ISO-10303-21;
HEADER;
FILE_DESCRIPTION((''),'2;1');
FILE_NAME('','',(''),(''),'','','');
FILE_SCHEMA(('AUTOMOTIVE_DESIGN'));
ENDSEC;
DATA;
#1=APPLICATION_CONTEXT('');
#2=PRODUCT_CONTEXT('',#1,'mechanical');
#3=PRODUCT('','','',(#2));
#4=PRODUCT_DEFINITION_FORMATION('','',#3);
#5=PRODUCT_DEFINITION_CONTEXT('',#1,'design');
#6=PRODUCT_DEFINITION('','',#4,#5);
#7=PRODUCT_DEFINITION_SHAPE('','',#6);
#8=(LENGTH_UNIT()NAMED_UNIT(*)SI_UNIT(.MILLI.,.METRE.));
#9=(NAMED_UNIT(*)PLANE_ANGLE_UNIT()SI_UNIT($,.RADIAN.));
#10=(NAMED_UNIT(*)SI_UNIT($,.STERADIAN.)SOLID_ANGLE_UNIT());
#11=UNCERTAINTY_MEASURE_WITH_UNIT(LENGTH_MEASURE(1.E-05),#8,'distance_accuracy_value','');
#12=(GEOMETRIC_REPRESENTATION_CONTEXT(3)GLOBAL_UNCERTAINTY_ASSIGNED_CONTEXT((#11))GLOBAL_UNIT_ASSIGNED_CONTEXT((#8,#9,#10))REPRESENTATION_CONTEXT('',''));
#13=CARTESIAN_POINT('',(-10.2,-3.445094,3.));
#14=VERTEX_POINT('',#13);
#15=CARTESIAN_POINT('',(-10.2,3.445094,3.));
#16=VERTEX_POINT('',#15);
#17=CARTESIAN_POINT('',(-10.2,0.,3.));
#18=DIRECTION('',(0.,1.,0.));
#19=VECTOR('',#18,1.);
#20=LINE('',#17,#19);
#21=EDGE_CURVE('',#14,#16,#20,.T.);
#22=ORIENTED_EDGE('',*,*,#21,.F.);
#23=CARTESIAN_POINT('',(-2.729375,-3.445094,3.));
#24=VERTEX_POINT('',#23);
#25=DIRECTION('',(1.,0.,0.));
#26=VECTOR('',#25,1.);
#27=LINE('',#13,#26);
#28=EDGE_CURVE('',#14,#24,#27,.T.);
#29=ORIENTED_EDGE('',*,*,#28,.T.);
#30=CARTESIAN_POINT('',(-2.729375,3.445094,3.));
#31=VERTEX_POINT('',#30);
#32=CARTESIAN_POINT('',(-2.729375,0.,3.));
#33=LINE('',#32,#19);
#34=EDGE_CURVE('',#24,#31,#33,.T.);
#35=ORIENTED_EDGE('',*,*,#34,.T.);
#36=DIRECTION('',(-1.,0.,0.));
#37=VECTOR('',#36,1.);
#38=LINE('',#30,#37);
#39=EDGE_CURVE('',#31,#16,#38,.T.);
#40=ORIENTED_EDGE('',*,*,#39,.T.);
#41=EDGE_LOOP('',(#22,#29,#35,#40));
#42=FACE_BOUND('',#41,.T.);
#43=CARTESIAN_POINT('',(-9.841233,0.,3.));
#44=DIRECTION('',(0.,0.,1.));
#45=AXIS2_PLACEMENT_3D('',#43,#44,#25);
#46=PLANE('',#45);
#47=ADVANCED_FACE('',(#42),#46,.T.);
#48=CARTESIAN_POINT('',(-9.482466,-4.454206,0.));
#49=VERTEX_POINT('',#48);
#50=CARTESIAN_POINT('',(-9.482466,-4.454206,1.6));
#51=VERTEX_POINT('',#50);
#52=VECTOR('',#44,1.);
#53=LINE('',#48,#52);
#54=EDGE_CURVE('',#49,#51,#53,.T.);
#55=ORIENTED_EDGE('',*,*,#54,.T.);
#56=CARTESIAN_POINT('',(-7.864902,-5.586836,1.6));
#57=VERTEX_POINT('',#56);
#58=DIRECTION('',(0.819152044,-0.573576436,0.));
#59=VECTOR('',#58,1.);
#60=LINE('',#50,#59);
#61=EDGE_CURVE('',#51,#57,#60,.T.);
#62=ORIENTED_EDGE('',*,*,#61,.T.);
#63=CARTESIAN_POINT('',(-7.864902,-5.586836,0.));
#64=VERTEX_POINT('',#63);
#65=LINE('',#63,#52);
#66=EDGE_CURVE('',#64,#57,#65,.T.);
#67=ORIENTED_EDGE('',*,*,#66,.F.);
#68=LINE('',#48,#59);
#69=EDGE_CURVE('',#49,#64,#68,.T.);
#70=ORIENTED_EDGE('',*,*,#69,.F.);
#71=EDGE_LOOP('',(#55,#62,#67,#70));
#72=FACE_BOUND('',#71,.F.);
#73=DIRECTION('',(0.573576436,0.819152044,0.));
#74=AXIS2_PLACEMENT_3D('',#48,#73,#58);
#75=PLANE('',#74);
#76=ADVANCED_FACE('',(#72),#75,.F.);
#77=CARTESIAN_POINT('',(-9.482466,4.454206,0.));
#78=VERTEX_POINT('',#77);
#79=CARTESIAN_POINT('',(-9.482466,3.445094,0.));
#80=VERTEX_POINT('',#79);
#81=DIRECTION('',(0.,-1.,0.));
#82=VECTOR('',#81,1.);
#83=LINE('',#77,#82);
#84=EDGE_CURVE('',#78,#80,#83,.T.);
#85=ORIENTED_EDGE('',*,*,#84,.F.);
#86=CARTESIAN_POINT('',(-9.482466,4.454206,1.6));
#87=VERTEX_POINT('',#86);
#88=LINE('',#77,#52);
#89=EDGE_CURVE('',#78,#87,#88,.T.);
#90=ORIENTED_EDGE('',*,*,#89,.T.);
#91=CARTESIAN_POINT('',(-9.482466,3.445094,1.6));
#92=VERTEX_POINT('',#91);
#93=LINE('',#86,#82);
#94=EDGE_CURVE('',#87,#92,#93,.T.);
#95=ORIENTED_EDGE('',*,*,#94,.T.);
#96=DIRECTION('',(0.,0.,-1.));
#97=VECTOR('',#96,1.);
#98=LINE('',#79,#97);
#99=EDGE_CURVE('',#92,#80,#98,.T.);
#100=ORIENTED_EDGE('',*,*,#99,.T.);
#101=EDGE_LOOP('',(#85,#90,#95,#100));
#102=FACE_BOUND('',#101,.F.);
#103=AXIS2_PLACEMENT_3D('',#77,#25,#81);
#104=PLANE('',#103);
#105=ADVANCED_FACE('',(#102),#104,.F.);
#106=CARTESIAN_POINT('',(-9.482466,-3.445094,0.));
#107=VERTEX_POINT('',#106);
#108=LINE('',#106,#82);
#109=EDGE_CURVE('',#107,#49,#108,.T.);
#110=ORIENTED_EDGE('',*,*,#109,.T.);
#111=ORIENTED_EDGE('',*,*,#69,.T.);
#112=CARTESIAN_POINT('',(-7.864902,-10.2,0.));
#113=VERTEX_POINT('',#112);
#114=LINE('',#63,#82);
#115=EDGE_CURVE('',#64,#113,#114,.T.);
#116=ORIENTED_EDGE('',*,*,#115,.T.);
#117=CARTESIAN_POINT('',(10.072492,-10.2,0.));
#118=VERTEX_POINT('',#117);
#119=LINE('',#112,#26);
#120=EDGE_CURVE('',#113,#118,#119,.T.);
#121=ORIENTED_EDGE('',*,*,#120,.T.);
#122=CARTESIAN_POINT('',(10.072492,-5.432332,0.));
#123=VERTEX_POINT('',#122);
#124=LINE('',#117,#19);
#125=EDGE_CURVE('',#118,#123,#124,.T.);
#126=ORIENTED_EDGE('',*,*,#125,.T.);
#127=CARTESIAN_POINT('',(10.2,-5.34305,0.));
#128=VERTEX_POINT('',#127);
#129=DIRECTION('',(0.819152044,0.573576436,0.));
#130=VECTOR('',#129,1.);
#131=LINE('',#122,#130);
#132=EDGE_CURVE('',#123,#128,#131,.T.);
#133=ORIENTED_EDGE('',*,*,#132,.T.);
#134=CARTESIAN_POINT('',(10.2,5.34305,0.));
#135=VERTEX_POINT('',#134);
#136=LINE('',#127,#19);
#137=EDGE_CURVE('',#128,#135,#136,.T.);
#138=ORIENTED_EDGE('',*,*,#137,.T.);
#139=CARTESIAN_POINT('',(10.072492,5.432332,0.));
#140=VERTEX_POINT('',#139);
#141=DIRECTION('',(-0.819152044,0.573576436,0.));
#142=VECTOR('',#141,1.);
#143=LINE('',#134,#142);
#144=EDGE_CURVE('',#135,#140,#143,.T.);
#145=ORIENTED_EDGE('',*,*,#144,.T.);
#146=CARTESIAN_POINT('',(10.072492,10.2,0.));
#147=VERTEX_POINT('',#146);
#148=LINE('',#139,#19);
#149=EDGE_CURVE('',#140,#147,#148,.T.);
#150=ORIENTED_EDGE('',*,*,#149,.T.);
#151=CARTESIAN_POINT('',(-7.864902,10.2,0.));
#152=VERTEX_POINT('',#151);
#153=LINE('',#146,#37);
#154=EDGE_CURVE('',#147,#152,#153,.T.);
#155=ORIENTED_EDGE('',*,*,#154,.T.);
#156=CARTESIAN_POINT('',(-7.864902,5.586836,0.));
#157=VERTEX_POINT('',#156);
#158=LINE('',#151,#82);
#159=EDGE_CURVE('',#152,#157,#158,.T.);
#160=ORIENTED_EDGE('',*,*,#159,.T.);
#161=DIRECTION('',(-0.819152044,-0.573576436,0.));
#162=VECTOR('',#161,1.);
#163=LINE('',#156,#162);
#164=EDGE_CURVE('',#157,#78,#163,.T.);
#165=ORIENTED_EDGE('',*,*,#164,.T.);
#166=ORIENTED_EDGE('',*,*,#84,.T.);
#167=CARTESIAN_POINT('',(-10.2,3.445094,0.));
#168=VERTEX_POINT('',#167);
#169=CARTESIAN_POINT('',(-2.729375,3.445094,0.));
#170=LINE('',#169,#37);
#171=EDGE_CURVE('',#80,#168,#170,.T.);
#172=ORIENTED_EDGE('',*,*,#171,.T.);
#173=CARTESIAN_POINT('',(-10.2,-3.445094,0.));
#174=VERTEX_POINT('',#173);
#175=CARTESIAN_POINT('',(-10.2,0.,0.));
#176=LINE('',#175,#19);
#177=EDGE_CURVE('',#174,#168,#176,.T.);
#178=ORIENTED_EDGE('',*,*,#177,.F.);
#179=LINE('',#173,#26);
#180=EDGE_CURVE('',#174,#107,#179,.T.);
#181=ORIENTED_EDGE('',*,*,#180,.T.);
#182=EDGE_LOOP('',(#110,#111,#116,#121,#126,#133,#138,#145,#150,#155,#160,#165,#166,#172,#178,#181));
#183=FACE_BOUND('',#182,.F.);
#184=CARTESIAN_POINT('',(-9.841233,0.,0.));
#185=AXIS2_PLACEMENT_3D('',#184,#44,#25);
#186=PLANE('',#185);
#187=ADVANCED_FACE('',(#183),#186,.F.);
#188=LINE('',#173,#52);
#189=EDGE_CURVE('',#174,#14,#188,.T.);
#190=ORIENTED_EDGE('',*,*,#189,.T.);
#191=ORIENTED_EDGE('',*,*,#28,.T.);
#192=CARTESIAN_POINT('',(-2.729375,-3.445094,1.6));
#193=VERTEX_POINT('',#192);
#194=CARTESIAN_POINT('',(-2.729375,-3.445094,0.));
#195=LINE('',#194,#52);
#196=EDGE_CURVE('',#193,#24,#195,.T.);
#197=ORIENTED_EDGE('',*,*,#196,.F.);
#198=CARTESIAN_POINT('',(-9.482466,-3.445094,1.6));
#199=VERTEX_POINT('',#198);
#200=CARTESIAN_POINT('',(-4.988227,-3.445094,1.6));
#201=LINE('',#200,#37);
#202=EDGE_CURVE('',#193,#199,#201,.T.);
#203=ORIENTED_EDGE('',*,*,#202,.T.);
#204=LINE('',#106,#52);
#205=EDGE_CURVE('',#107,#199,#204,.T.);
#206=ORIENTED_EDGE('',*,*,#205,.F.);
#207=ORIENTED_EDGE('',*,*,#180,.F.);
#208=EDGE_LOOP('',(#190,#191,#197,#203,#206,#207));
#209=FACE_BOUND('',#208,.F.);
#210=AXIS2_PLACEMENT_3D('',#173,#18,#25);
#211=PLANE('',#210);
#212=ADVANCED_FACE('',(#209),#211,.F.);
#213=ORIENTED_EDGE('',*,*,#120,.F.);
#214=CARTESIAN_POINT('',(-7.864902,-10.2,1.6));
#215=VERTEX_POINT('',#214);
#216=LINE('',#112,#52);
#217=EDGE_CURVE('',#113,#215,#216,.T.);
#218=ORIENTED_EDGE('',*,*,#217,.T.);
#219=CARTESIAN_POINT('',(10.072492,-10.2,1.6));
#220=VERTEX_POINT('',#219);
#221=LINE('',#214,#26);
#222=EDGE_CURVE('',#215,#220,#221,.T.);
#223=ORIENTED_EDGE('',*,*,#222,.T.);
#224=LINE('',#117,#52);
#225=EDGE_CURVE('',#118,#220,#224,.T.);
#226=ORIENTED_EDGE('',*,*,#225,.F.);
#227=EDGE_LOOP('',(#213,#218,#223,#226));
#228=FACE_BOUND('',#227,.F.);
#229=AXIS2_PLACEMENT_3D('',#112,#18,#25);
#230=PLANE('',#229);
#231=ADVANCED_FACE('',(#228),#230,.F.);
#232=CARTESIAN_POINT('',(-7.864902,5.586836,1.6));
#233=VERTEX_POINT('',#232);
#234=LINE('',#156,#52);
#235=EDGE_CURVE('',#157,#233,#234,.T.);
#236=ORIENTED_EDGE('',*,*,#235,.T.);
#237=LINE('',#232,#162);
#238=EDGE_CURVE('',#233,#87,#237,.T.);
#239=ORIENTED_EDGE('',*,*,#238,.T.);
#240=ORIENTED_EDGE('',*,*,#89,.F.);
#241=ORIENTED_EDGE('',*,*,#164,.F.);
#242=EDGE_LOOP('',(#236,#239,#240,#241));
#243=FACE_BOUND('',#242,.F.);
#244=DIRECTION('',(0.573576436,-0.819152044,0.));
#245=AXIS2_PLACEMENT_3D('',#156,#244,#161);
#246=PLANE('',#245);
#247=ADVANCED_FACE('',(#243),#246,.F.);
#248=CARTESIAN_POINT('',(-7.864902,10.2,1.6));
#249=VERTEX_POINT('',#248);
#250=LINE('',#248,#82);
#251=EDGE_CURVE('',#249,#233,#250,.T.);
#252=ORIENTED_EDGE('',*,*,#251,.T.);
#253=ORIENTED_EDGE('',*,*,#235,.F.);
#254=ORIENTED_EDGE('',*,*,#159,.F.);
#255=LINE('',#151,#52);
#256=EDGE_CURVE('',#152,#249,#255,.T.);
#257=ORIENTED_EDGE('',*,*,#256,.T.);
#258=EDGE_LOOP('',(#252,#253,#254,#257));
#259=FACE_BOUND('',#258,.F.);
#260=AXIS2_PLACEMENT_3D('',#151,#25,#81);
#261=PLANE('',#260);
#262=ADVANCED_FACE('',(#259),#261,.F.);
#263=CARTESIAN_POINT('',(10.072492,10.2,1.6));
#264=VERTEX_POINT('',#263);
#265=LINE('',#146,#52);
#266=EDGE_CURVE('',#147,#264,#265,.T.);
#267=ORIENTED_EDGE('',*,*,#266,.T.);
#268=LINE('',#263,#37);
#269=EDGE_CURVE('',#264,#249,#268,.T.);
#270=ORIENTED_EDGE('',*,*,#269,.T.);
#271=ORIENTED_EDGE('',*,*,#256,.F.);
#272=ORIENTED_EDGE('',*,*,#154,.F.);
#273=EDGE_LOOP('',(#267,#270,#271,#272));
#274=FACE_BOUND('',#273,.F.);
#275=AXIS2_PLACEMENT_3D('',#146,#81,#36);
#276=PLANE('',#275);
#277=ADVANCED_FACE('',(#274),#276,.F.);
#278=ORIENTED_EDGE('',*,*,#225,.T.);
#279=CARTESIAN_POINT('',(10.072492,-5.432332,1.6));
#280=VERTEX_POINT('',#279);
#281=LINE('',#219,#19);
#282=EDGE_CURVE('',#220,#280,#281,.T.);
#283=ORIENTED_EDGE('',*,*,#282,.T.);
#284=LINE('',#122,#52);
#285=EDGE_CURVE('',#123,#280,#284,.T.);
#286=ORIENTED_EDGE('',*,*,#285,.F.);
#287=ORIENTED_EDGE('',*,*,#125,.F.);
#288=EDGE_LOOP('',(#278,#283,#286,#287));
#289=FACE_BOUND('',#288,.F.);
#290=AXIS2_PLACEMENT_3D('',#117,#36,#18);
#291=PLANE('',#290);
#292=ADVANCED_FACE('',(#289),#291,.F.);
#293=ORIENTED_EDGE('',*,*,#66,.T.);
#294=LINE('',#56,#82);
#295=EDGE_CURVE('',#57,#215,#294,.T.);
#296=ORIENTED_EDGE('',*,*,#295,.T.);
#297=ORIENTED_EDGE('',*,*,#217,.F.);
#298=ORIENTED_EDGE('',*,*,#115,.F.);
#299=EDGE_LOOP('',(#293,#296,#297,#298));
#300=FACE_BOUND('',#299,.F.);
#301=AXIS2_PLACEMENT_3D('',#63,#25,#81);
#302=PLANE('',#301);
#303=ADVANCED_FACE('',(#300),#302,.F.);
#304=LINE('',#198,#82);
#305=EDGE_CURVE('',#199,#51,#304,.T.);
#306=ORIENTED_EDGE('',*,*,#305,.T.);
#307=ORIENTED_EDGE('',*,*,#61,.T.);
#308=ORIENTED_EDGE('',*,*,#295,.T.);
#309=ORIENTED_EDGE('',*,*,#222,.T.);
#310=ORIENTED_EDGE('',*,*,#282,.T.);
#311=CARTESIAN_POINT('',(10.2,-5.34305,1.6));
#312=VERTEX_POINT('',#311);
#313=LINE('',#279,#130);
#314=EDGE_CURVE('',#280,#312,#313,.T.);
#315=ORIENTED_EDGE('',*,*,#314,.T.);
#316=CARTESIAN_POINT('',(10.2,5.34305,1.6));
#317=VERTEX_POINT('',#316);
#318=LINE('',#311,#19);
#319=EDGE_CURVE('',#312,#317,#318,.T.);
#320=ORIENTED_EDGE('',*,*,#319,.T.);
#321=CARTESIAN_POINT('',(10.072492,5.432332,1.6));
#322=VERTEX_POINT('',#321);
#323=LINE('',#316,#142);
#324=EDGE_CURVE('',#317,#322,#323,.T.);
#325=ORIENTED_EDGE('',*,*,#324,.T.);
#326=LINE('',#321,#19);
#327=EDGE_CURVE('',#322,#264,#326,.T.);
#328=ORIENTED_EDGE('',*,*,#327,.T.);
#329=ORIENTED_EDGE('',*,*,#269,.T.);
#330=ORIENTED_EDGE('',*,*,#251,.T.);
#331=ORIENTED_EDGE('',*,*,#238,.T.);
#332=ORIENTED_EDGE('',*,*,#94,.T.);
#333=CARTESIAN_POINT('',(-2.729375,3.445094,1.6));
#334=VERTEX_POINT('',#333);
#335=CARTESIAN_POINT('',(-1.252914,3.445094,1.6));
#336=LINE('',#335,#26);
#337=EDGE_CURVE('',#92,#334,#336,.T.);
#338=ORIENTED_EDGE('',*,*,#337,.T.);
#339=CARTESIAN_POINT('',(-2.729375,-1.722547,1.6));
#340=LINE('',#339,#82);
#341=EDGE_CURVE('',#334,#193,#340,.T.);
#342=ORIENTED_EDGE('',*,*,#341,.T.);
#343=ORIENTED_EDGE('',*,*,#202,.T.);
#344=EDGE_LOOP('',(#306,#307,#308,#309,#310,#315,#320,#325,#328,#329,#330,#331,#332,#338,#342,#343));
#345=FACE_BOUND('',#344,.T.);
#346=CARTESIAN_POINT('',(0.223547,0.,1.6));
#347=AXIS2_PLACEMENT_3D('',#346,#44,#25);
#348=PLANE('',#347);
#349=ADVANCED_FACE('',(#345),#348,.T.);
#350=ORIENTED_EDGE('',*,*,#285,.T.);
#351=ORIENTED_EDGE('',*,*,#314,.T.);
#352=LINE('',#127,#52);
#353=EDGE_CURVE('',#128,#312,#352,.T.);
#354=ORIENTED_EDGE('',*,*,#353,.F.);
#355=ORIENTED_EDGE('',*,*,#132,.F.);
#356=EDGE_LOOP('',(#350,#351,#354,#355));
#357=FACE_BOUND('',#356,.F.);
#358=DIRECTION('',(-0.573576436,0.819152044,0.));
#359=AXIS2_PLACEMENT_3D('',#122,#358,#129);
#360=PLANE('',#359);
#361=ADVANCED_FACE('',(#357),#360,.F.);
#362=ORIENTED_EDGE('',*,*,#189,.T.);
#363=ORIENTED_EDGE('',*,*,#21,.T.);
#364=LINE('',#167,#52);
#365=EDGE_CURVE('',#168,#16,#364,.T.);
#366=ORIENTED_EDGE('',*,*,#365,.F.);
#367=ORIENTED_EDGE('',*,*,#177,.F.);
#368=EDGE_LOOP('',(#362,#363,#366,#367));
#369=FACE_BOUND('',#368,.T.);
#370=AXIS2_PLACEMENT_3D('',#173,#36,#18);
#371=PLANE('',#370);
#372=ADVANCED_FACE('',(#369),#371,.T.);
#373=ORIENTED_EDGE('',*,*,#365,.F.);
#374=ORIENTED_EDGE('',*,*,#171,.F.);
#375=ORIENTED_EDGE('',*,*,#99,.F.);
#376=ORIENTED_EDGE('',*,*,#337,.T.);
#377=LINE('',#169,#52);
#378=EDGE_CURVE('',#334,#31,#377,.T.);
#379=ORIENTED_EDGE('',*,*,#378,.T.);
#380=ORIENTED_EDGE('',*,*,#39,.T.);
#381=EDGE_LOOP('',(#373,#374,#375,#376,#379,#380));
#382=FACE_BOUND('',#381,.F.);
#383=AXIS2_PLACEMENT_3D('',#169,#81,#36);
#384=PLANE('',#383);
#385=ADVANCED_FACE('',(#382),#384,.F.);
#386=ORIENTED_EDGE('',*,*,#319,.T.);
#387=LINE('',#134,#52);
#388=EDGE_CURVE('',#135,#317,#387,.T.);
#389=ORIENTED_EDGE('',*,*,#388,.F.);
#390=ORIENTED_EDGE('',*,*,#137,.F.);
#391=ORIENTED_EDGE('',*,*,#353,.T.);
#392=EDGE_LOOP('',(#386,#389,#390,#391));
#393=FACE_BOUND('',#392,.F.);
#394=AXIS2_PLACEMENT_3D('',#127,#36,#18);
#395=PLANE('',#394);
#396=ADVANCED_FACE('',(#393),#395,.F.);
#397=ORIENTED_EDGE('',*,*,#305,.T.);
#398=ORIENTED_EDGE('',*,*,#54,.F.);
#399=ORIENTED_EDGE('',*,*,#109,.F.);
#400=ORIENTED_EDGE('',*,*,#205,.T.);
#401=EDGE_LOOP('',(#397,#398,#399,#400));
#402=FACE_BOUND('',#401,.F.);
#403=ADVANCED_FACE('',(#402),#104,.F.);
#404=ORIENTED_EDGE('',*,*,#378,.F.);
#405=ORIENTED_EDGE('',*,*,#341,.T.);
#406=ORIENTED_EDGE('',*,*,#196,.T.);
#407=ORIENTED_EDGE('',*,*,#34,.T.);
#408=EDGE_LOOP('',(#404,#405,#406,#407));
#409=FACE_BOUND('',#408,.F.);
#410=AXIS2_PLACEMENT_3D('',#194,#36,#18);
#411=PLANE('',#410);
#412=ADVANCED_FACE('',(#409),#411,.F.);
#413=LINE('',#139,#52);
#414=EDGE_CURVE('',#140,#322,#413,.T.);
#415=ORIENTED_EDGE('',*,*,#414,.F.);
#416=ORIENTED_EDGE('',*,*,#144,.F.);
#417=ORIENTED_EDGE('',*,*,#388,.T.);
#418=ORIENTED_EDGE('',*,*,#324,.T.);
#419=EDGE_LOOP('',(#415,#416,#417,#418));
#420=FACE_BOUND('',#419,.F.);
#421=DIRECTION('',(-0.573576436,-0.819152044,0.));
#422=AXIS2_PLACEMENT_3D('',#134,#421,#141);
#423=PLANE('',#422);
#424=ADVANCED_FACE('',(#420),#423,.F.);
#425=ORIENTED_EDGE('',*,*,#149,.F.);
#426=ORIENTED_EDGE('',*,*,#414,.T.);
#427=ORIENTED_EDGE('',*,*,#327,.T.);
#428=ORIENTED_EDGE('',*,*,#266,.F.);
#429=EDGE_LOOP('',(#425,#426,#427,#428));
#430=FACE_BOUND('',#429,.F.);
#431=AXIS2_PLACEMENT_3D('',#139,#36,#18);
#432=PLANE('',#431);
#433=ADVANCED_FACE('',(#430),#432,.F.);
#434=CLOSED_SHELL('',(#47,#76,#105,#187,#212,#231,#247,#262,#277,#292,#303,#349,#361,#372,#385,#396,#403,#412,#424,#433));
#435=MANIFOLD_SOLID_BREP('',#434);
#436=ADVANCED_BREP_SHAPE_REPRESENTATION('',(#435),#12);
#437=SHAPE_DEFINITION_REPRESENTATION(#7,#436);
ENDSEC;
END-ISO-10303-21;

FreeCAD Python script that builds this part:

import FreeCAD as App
import Part
import Sketcher
Q = App.Units.Quantity

doc = App.newDocument("Part")
body = doc.addObject("PartDesign::Body", "Body")

# Sketch on XY plane
sketch1 = body.newObject("Sketcher::SketchObject", "Sketch")
sketch1.AttachmentSupport = (doc.getObject("XY_Plane"), [""])
sketch1.MapMode = "FlatFace"
sketch1.addGeometry(Part.LineSegment(App.Vector(10.07, 5.43, 0), App.Vector(10.07, 10.2, 0)), False)
sketch1.addGeometry(Part.LineSegment(App.Vector(10.07, 10.2, 0), App.Vector(-7.86, 10.2, 0)), False)
sketch1.addGeometry(Part.LineSegment(App.Vector(-7.86, 10.2, 0), App.Vector(-7.86, 5.59, 0)), False)
sketch1.addGeometry(Part.LineSegment(App.Vector(-7.86, 5.59, 0), App.Vector(-9.48, 4.45, 0)), False)
sketch1.addGeometry(Part.LineSegment(App.Vector(-9.48, 4.45, 0), App.Vector(-9.48, 3.45, 0)), False)
sketch1.addGeometry(Part.LineSegment(App.Vector(-9.48, 3.45, 0), App.Vector(-9.48, -3.45, 0)), False)
sketch1.addGeometry(Part.LineSegment(App.Vector(-9.48, -3.45, 0), App.Vector(-9.48, -4.45, 0)), False)
sketch1.addGeometry(Part.LineSegment(App.Vector(-9.48, -4.45, 0), App.Vector(-7.86, -5.59, 0)), False)
sketch1.addGeometry(Part.LineSegment(App.Vector(-7.86, -5.59, 0), App.Vector(-7.86, -10.2, 0)), False)
sketch1.addGeometry(Part.LineSegment(App.Vector(-7.86, -10.2, 0), App.Vector(10.07, -10.2, 0)), False)
sketch1.addGeometry(Part.LineSegment(App.Vector(10.07, -10.2, 0), App.Vector(10.07, -5.43, 0)), False)
sketch1.addGeometry(Part.LineSegment(App.Vector(10.07, -5.43, 0), App.Vector(10.2, -5.34, 0)), False)
sketch1.addGeometry(Part.LineSegment(App.Vector(10.2, -5.34, 0), App.Vector(10.2, 5.34, 0)), False)
sketch1.addGeometry(Part.LineSegment(App.Vector(10.2, 5.34, 0), App.Vector(10.07, 5.43, 0)), False)
sketch1.addConstraint(Sketcher.Constraint("Coincident", 0, 2, 1, 1))
sketch1.addConstraint(Sketcher.Constraint("Coincident", 1, 2, 2, 1))
sketch1.addConstraint(Sketcher.Constraint("Coincident", 2, 2, 3, 1))
sketch1.addConstraint(Sketcher.Constraint("Coincident", 3, 2, 4, 1))
sketch1.addConstraint(Sketcher.Constraint("Coincident", 4, 2, 5, 1))
sketch1.addConstraint(Sketcher.Constraint("Coincident", 5, 2, 6, 1))
sketch1.addConstraint(Sketcher.Constraint("Coincident", 6, 2, 7, 1))
sketch1.addConstraint(Sketcher.Constraint("Coincident", 7, 2, 8, 1))
sketch1.addConstraint(Sketcher.Constraint("Coincident", 8, 2, 9, 1))
sketch1.addConstraint(Sketcher.Constraint("Coincident", 9, 2, 10, 1))
sketch1.addConstraint(Sketcher.Constraint("Coincident", 10, 2, 11, 1))
sketch1.addConstraint(Sketcher.Constraint("Coincident", 11, 2, 12, 1))
sketch1.addConstraint(Sketcher.Constraint("Coincident", 12, 2, 13, 1))
sketch1.addConstraint(Sketcher.Constraint("Coincident", 13, 2, 0, 1))
sketch1.addConstraint(Sketcher.Constraint("Vertical", 0))
sketch1.addConstraint(Sketcher.Constraint("Horizontal", 1))
sketch1.addConstraint(Sketcher.Constraint("Vertical", 2))
sketch1.addConstraint(Sketcher.Constraint("Vertical", 4))
sketch1.addConstraint(Sketcher.Constraint("Vertical", 5))
sketch1.addConstraint(Sketcher.Constraint("Vertical", 6))
sketch1.addConstraint(Sketcher.Constraint("Vertical", 8))
sketch1.addConstraint(Sketcher.Constraint("Horizontal", 9))
sketch1.addConstraint(Sketcher.Constraint("Vertical", 10))
sketch1.addConstraint(Sketcher.Constraint("Vertical", 12))
sketch1.addConstraint(Sketcher.Constraint("Symmetric", 2, 2, 7, 2, -1))
sketch1.addConstraint(Sketcher.Constraint("Symmetric", 0, 2, 9, 2, -1))
sketch1.addConstraint(Sketcher.Constraint("Parallel", 3, 11))
sketch1.addConstraint(Sketcher.Constraint("Parallel", 7, 13))
sketch1.addConstraint(Sketcher.Constraint("Equal", 4, 6))
sketch1.addConstraint(Sketcher.Constraint("Equal", 0, 10))
sketch1.addConstraint(Sketcher.Constraint("Equal", 3, 7))
sketch1.addConstraint(Sketcher.Constraint("Angle", 3, Q("-145 deg")))
sketch1.addConstraint(Sketcher.Constraint("DistanceY", -1, 1, 0, 2, Q("10.2 mm")))
sketch1.addConstraint(Sketcher.Constraint("DistanceX", -1, 1, 11, 2, Q("10.2 mm")))
sketch1.addConstraint(Sketcher.Constraint("DistanceY", 12, 1, 12, 2, Q("10.6861 mm")))
sketch1.addConstraint(Sketcher.Constraint("DistanceY", 0, 1, 0, 2, Q("4.767668 mm")))
sketch1.addConstraint(Sketcher.Constraint("DistanceY", 4, 2, 4, 1, Q("1.009112 mm")))
sketch1.addConstraint(Sketcher.Constraint("DistanceY", 5, 2, 5, 1, Q("6.890188 mm")))
sketch1.addConstraint(Sketcher.Constraint("Distance", 3, Q("1.974681 mm")))
sketch1.addConstraint(Sketcher.Constraint("DistanceX", 1, 2, 1, 1, Q("17.937394 mm")))
pad1 = body.newObject("PartDesign::Pad", "Pad")
pad1.Profile = sketch1
pad1.Length = 1.6

# Sketch on XY plane
sketch2 = body.newObject("Sketcher::SketchObject", "Sketch001")
sketch2.AttachmentSupport = (doc.getObject("XY_Plane"), [""])
sketch2.MapMode = "FlatFace"
sketch2.addGeometry(Part.LineSegment(App.Vector(-10, 3, 0), App.Vector(-10, -3, 0)), False)
sketch2.addGeometry(Part.LineSegment(App.Vector(-10, -3, 0), App.Vector(-3, -3, 0)), False)
sketch2.addGeometry(Part.LineSegment(App.Vector(-3, -3, 0), App.Vector(-3, 3, 0)), False)
sketch2.addGeometry(Part.LineSegment(App.Vector(-3, 3, 0), App.Vector(-10, 3, 0)), False)
sketch2.addConstraint(Sketcher.Constraint("Coincident", 0, 2, 1, 1))
sketch2.addConstraint(Sketcher.Constraint("Coincident", 1, 2, 2, 1))
sketch2.addConstraint(Sketcher.Constraint("Coincident", 2, 2, 3, 1))
sketch2.addConstraint(Sketcher.Constraint("Coincident", 3, 2, 0, 1))
sketch2.addConstraint(Sketcher.Constraint("Vertical", 0))
sketch2.addConstraint(Sketcher.Constraint("Horizontal", 1))
sketch2.addConstraint(Sketcher.Constraint("Vertical", 2))
sketch2.addConstraint(Sketcher.Constraint("Horizontal", 3))
sketch2.addConstraint(Sketcher.Constraint("DistanceX", 0, 2, -1, 1, Q("10.2 mm")))
sketch2.addConstraint(Sketcher.Constraint("DistanceY", 0, 2, 0, 1, Q("6.890188 mm")))
sketch2.addConstraint(Sketcher.Constraint("DistanceX", 1, 1, 1, 2, Q("7.470625 mm")))
sketch2.addConstraint(Sketcher.Constraint("DistanceY", 0, 2, -1, 1, Q("3.445094 mm")))
pad2 = body.newObject("PartDesign::Pad", "Pad001")
pad2.Profile = sketch2
pad2.Length = 3

doc.recompute()
